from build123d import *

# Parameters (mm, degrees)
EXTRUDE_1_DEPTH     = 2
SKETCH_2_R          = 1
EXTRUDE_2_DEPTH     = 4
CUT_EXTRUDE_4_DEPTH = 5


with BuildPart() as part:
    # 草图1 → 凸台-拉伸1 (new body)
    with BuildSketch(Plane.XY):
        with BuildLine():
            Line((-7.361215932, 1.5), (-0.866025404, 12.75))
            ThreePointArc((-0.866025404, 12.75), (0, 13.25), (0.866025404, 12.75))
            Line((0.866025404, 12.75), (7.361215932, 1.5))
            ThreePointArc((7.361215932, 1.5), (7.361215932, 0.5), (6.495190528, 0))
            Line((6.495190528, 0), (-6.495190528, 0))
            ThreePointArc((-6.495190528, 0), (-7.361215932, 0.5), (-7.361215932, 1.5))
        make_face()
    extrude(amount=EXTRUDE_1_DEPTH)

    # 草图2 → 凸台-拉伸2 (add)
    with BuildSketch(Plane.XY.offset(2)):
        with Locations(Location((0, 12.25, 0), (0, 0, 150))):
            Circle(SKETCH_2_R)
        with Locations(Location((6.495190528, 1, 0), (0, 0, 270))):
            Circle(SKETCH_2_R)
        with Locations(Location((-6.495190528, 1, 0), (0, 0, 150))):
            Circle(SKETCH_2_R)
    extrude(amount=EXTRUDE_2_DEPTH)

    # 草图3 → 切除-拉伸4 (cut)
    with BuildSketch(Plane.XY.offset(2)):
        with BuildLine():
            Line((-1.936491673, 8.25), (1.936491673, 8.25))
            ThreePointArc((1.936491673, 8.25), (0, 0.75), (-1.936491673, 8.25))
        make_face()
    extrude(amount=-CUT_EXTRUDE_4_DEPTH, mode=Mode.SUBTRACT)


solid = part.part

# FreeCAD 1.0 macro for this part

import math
import FreeCAD as App
import Part
import Sketcher
Q = App.Units.Quantity

doc = App.newDocument("Part")
body = doc.addObject("PartDesign::Body", "Body")

sketch1 = doc.addObject("Sketcher::SketchObject", "Sketch")
body.addObject(sketch1)
sketch1.AttachmentSupport = (doc.XY_Plane, [""])
sketch1.MapMode = "FlatFace"
sketch1.addGeometry([
    Part.LineSegment(App.Vector(-0.9, 12.8, 0), App.Vector(-7.4, 1.5, 0)),
    Part.ArcOfCircle(Part.Circle(App.Vector(-6.5, 1, 0), App.Vector(0, 0, 1), 1), math.radians(150), math.radians(270)),
    Part.LineSegment(App.Vector(-6.5, 0, 0), App.Vector(6.5, 0, 0)),
    Part.ArcOfCircle(Part.Circle(App.Vector(6.5, 1, 0), App.Vector(0, 0, 1), 1), math.radians(-90), math.radians(30)),
    Part.LineSegment(App.Vector(7.4, 1.5, 0), App.Vector(0.9, 12.8, 0)),
    Part.ArcOfCircle(Part.Circle(App.Vector(0, 12.2, 0), App.Vector(0, 0, 1), 1), math.radians(30), math.radians(150)),
], False)
sketch1.addConstraint([
    Sketcher.Constraint("Tangent", 0, 2, 1, 1),
    Sketcher.Constraint("Tangent", 1, 2, 2, 1),
    Sketcher.Constraint("Tangent", 2, 2, 3, 1),
    Sketcher.Constraint("Tangent", 3, 2, 4, 1),
    Sketcher.Constraint("Tangent", 4, 2, 5, 1),
    Sketcher.Constraint("Tangent", 5, 2, 0, 1),
    Sketcher.Constraint("Horizontal", 2),
    Sketcher.Constraint("Equal", 1, 3),
    Sketcher.Constraint("Equal", 3, 5),
    Sketcher.Constraint("Symmetric", 1, 2, 2, 2, -1, 1),
    Sketcher.Constraint("PointOnObject", 5, 3, -2),
    Sketcher.Constraint("Radius", 1, 1.0),
    Sketcher.Constraint("Angle", 0, Q("-120 deg")),
    Sketcher.Constraint("DistanceY", -1, 1, 5, 3, 12.25),
])
pad1 = doc.addObject("PartDesign::Pad", "Pad")
body.addObject(pad1)
pad1.Profile = sketch1
pad1.Length = 2

sketch2 = doc.addObject("Sketcher::SketchObject", "Sketch001")
body.addObject(sketch2)
sketch2.AttachmentSupport = (doc.XY_Plane, [""])
sketch2.MapMode = "FlatFace"
sketch2.AttachmentOffset = App.Placement(App.Vector(0, 0, 2), App.Rotation())
sketch2.addGeometry([
    Part.Circle(App.Vector(0, 12.2, 0), App.Vector(0, 0, 1), 1),
    Part.Circle(App.Vector(6.5, 1, 0), App.Vector(0, 0, 1), 1),
    Part.Circle(App.Vector(-6.5, 1, 0), App.Vector(0, 0, 1), 1),
], False)
sketch2.addConstraint([
    Sketcher.Constraint("Equal", 0, 1),
    Sketcher.Constraint("Equal", 1, 2),
    Sketcher.Constraint("Symmetric", 1, 3, 2, 3, -2),
    Sketcher.Constraint("PointOnObject", 0, 3, -2),
    Sketcher.Constraint("Diameter", 0, 2.0),
    Sketcher.Constraint("DistanceY", -1, 1, 1, 3, 1.0),
    Sketcher.Constraint("DistanceY", -1, 1, 0, 3, 12.25),
    Sketcher.Constraint("DistanceX", -1, 1, 1, 3, 6.495191),
])
pad2 = doc.addObject("PartDesign::Pad", "Pad001")
body.addObject(pad2)
pad2.Profile = sketch2
pad2.Length = 4

sketch3 = doc.addObject("Sketcher::SketchObject", "Sketch002")
body.addObject(sketch3)
sketch3.AttachmentSupport = (doc.XY_Plane, [""])
sketch3.MapMode = "FlatFace"
sketch3.AttachmentOffset = App.Placement(App.Vector(0, 0, 2), App.Rotation())
sketch3.addGeometry([
    Part.LineSegment(App.Vector(1.9, 8.2, 0), App.Vector(-1.9, 8.2, 0)),
    Part.ArcOfCircle(Part.Circle(App.Vector(0, 4.8, 0), App.Vector(0, 0, 1), 4), math.radians(119), math.radians(421)),
], False)
sketch3.addConstraint([
    Sketcher.Constraint("Coincident", 0, 1, 1, 2),
    Sketcher.Constraint("Coincident", 1, 1, 0, 2),
    Sketcher.Constraint("Horizontal", 0),
    Sketcher.Constraint("PointOnObject", 1, 3, -2),
    Sketcher.Constraint("Radius", 1, 4.0),
    Sketcher.Constraint("DistanceY", 1, 3, 0, 1, 3.5),
    Sketcher.Constraint("DistanceY", -1, 1, 1, 3, 4.75),
])
pocket1 = doc.addObject("PartDesign::Pocket", "Pocket")
body.addObject(pocket1)
pocket1.Profile = sketch3
pocket1.Length = 5

doc.recompute()
